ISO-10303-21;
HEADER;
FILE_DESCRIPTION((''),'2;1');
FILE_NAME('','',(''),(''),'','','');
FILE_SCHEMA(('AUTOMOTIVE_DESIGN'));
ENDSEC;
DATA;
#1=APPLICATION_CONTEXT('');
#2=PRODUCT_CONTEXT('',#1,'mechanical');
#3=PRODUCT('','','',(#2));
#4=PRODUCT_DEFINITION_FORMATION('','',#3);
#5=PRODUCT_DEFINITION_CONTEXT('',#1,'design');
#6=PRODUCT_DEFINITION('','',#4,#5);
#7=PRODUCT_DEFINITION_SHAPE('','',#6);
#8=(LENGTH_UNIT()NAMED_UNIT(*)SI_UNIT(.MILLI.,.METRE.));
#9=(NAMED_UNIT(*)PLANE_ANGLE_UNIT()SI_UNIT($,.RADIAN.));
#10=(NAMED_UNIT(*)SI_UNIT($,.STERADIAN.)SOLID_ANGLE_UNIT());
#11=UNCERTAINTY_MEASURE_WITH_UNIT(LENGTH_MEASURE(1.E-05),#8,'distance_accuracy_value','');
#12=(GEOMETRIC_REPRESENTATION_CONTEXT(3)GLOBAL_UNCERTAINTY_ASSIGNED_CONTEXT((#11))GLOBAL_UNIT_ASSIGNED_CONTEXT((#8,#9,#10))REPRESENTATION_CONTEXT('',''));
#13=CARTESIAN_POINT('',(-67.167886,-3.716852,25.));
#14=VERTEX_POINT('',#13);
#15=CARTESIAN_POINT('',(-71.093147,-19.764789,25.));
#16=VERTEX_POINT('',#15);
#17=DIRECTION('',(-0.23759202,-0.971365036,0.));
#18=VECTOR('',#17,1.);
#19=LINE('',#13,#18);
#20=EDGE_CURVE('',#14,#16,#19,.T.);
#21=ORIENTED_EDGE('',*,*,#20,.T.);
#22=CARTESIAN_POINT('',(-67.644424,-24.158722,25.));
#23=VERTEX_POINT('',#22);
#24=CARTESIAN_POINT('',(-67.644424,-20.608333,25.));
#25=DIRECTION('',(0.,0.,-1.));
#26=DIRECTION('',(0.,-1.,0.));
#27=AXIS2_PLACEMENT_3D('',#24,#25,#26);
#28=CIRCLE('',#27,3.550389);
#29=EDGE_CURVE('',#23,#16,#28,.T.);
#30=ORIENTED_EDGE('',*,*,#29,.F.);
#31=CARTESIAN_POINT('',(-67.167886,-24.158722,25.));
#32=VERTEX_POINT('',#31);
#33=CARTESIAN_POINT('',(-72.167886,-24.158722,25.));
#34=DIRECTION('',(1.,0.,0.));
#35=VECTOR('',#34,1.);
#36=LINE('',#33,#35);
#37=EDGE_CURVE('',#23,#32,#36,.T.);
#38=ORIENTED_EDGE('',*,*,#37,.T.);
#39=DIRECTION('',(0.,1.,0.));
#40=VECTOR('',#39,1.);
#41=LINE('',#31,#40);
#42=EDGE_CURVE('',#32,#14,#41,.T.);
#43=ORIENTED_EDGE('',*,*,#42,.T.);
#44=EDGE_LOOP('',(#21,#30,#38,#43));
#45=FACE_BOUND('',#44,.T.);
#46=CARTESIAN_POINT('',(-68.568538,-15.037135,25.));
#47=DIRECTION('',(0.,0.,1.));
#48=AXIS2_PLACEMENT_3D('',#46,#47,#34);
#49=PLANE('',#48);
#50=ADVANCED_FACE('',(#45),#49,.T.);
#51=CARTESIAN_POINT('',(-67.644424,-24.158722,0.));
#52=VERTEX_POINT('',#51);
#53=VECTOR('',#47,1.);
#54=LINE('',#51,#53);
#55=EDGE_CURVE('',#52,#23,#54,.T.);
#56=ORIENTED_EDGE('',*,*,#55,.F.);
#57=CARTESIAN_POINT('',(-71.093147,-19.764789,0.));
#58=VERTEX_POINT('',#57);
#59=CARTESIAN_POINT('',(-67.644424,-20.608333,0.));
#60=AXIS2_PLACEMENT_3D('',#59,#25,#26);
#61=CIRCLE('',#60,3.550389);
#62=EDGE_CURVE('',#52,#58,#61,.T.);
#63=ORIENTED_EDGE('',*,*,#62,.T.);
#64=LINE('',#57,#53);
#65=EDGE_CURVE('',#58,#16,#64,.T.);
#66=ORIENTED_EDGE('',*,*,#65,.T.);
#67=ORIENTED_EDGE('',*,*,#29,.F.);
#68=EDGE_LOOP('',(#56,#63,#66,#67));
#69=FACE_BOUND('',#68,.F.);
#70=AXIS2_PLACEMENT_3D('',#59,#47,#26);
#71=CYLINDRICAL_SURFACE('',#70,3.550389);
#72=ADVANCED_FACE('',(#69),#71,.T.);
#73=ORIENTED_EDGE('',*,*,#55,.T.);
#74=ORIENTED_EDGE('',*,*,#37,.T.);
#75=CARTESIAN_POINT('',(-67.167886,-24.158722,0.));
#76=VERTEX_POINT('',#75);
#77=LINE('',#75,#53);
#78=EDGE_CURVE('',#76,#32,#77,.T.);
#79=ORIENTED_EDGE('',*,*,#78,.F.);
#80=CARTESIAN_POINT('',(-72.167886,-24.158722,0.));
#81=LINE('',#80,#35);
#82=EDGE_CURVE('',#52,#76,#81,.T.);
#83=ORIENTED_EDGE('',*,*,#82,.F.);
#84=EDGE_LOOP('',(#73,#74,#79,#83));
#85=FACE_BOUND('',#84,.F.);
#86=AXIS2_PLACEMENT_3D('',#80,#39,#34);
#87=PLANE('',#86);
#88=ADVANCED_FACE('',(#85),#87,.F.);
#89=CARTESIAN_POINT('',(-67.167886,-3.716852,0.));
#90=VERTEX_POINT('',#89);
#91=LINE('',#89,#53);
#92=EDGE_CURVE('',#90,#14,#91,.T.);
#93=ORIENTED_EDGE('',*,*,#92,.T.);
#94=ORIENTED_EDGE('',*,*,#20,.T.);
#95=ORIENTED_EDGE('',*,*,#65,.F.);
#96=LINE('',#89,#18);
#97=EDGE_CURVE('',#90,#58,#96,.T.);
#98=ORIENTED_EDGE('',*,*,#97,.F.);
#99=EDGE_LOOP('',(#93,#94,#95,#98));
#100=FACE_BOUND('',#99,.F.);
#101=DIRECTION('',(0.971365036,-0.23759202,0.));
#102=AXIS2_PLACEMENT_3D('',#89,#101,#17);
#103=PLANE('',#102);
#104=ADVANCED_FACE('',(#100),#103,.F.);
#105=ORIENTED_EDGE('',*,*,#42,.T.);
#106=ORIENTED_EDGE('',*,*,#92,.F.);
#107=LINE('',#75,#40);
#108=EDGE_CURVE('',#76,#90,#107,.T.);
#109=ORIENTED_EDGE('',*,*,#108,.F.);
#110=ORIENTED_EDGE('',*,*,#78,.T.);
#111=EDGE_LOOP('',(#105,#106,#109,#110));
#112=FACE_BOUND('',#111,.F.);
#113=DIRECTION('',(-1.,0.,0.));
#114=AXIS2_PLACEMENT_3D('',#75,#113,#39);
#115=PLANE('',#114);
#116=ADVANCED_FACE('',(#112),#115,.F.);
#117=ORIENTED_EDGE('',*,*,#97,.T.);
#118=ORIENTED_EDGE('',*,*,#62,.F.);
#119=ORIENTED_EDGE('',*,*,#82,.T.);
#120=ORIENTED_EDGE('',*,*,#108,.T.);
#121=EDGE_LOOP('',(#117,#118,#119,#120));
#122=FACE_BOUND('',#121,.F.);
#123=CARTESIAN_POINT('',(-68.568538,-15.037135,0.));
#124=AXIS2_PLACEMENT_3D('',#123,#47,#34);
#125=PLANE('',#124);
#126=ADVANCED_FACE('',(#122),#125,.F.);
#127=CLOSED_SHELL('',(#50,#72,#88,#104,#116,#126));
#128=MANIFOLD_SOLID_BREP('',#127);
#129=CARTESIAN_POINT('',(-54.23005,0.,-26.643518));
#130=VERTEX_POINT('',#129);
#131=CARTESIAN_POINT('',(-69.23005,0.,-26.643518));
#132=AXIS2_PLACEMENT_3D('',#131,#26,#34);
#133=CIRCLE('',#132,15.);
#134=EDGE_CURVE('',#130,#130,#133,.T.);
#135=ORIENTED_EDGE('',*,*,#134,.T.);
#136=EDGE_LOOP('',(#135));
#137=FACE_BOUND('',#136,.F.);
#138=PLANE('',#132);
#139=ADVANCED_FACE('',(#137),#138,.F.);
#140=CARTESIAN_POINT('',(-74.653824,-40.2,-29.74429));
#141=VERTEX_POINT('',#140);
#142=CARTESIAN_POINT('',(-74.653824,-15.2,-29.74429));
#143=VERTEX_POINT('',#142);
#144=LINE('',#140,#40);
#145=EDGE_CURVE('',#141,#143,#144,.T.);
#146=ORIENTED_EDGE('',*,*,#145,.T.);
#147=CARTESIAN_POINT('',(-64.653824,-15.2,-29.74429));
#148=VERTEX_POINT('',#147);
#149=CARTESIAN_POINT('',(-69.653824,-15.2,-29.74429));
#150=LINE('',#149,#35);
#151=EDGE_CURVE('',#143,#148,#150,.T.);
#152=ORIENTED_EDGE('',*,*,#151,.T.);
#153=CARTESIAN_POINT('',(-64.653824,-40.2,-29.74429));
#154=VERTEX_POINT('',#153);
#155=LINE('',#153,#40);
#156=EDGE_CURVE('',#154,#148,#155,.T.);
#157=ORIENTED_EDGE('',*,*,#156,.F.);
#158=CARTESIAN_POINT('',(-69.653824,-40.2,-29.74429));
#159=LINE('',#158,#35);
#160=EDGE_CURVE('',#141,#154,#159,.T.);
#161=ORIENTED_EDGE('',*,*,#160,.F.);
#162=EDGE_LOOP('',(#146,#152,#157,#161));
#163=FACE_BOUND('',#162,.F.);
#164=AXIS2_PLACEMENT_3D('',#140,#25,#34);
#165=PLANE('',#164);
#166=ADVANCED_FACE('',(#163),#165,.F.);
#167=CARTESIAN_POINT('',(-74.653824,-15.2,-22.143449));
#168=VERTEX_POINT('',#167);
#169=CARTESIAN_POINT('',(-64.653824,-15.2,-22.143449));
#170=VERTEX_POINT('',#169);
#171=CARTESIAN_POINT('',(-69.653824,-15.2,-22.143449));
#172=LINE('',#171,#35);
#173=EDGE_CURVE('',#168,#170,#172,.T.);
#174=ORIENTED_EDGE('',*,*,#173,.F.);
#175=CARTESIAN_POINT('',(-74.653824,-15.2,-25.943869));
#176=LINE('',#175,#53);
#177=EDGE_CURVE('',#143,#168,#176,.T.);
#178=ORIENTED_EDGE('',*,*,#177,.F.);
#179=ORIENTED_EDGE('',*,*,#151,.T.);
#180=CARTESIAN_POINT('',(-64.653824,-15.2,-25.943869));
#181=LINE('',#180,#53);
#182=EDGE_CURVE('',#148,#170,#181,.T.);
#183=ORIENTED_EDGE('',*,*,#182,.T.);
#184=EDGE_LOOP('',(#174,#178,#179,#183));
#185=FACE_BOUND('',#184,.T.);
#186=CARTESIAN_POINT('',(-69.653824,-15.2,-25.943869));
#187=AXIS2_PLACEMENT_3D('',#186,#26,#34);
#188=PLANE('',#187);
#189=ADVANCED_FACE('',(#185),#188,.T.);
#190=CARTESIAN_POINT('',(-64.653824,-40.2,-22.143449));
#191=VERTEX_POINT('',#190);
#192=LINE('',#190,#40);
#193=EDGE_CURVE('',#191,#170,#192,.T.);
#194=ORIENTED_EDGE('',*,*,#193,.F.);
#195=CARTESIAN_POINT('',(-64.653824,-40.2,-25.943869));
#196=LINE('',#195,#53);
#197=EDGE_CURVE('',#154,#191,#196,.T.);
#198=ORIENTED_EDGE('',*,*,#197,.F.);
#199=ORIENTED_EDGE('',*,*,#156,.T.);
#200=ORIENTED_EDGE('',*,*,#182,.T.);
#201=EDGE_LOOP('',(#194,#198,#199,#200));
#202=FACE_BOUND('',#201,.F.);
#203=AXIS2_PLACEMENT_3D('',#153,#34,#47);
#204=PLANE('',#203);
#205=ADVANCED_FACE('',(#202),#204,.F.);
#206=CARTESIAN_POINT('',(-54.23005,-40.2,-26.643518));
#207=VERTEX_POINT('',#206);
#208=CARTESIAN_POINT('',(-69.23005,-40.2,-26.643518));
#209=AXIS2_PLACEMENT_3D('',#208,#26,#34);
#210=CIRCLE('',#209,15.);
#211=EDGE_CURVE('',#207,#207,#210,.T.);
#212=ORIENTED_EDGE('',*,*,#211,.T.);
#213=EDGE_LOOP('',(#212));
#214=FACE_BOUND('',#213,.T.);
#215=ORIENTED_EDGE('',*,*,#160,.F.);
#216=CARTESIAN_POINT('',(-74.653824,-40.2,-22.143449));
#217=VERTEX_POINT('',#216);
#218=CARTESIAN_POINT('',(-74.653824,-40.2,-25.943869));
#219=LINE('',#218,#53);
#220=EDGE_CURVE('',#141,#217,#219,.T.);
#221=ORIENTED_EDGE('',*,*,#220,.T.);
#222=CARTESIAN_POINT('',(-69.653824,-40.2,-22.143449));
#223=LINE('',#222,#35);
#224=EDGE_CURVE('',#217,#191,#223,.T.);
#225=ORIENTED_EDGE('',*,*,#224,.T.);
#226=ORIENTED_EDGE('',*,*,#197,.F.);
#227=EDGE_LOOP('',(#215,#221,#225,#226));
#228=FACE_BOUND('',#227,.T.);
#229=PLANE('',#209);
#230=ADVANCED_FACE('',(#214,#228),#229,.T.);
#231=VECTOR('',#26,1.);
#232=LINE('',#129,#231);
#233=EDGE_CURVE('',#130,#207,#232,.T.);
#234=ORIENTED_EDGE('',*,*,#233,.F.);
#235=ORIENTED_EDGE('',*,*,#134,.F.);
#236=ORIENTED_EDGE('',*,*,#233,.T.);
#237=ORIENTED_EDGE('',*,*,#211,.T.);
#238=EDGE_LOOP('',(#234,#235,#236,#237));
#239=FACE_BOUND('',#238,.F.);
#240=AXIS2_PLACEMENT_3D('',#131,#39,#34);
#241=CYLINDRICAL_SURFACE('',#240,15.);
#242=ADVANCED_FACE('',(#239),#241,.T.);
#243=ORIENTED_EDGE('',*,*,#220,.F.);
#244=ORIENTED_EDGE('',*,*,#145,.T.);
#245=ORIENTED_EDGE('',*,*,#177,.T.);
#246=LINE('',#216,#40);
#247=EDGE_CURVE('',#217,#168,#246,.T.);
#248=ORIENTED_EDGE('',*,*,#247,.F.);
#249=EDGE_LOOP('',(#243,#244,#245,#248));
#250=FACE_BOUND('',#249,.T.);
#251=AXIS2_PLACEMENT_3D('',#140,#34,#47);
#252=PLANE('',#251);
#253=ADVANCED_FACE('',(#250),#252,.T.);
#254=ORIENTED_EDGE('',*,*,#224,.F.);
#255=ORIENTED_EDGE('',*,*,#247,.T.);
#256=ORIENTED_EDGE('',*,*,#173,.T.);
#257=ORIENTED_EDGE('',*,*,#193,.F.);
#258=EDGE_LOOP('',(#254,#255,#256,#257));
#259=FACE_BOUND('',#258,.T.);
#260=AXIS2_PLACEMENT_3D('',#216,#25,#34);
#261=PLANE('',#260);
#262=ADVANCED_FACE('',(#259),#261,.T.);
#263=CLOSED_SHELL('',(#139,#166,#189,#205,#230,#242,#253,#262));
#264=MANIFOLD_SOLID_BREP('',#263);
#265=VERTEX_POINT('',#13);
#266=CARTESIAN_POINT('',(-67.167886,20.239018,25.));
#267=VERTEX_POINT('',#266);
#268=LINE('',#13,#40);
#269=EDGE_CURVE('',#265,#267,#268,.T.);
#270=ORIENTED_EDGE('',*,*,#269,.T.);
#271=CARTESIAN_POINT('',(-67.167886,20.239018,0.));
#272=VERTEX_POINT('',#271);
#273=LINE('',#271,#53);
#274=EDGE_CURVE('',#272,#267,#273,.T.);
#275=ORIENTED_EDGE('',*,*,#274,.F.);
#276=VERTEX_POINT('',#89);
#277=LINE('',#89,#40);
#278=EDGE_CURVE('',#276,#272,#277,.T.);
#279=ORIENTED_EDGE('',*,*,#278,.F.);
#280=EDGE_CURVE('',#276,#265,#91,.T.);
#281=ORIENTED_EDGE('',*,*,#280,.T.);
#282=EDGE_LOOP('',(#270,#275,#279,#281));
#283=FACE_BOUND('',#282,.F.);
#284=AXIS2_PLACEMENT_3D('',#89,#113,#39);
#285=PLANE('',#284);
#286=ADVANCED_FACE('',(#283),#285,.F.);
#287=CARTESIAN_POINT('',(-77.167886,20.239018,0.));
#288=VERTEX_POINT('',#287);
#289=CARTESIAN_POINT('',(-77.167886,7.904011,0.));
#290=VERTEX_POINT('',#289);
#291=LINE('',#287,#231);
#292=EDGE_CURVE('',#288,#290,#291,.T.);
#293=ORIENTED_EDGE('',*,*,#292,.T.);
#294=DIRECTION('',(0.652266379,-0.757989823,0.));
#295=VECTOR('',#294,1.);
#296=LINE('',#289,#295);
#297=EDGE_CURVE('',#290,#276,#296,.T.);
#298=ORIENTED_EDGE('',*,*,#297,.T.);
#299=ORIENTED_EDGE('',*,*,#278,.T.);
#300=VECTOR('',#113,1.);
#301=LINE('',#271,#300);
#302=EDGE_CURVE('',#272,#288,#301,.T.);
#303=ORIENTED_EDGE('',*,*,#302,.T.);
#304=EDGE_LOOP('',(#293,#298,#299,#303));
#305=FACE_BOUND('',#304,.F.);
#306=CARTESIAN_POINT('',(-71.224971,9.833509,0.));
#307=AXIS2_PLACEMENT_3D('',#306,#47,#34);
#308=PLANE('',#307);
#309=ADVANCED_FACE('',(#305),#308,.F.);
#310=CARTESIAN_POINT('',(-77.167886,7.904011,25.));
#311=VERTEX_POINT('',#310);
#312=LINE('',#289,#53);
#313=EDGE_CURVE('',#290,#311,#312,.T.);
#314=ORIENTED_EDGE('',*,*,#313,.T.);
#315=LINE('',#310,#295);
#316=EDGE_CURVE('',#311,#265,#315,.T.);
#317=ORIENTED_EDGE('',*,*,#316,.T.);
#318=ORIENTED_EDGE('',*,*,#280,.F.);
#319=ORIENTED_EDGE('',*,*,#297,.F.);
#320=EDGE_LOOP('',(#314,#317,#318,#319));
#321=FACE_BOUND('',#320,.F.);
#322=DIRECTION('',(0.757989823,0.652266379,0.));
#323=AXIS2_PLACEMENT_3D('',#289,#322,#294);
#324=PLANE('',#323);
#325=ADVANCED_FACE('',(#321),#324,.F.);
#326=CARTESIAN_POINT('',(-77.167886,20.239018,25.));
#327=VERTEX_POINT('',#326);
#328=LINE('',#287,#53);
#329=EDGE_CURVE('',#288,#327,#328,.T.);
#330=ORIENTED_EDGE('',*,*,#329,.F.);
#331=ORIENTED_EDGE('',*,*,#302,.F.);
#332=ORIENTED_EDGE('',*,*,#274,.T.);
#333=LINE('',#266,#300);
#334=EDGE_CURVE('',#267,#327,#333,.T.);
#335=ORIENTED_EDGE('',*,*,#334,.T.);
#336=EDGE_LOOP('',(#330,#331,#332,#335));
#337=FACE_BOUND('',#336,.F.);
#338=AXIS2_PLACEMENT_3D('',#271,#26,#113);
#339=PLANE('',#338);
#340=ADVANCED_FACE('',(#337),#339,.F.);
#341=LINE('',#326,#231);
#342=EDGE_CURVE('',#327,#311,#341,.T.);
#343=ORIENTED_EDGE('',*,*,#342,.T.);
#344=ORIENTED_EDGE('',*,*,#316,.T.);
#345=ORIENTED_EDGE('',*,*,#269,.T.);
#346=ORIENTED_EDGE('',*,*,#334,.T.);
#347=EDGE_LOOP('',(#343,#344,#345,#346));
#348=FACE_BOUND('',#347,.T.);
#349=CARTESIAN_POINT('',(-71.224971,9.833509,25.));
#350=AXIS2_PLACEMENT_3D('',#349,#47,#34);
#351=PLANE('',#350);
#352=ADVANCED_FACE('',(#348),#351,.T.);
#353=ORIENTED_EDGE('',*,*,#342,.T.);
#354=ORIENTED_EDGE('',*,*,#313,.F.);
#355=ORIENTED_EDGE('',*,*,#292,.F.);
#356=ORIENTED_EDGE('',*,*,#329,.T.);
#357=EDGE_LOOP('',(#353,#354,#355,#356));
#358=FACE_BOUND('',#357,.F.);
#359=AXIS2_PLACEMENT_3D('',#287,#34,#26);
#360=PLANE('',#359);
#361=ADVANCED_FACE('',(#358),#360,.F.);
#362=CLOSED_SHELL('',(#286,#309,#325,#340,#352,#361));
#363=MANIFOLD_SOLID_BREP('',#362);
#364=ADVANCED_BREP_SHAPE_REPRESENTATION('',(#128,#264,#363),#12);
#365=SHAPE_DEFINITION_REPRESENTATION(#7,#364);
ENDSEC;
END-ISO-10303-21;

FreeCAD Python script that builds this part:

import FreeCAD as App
import Part
import Sketcher


def edges_at(feature, points):
    """Names of the edges that pass closest to the given points."""
    edges = feature.Shape.Edges
    near = lambda p: min(range(len(edges)), key=lambda i: edges[i].distToShape(Part.Vertex(*p))[0])
    return sorted({f"Edge{near(p) + 1}" for p in points})

doc = App.newDocument("Part")
params = doc.addObject("Spreadsheet::Sheet", "Params")
for row, (alias, value) in enumerate([
    ("sketch1_width", "10 mm"),
    ("sketch1_width2", "5 mm"),
    ("pad1_length", "25 mm"),
    ("fillet_radius", "3.550389 mm"),
    ("sketch2_diameter", "30 mm"),
    ("pad2_length", "40.2 mm"),
    ("sketch3_width", "10 mm"),
    ("pocket1_length", "25 mm"),
], start=1):
    params.set(f"A{row}", alias)
    params.set(f"B{row}", "=" + value)
    params.setAlias(f"B{row}", alias)

body = doc.addObject("PartDesign::Body", "Body")
body.AllowCompound = True

sketch1 = body.newObject("Sketcher::SketchObject", "Sketch")
sketch1.AttachmentSupport = (doc.getObject("XY_Plane"), [""])
sketch1.MapMode = "FlatFace"
sketch1.addGeometry(Part.LineSegment(App.Vector(-67.167886, 20.239018, 0), App.Vector(-77.167886, 20.239018, 0)), False)
sketch1.addGeometry(Part.LineSegment(App.Vector(-77.167886, 20.239018, 0), App.Vector(-77.167886, 7.904011, 0)), False)
sketch1.addGeometry(Part.LineSegment(App.Vector(-77.167886, 7.904011, 0), App.Vector(-67.167886, -3.716852, 0)), False)
sketch1.addGeometry(Part.LineSegment(App.Vector(-67.167886, -3.716852, 0), App.Vector(-67.167886, 20.239018, 0)), False)
sketch1.addGeometry(Part.LineSegment(App.Vector(-67.167886, -24.158722, 0), App.Vector(-67.167886, -3.716852, 0)), False)
sketch1.addGeometry(Part.LineSegment(App.Vector(-67.167886, -3.716852, 0), App.Vector(-72.167886, -24.158722, 0)), False)
sketch1.addGeometry(Part.LineSegment(App.Vector(-72.167886, -24.158722, 0), App.Vector(-67.167886, -24.158722, 0)), False)
sketch1.addConstraint(Sketcher.Constraint("Coincident", 0, 2, 1, 1))
sketch1.addConstraint(Sketcher.Constraint("Coincident", 1, 2, 2, 1))
sketch1.addConstraint(Sketcher.Constraint("Coincident", 2, 2, 3, 1))
sketch1.addConstraint(Sketcher.Constraint("Coincident", 3, 2, 0, 1))
sketch1.addConstraint(Sketcher.Constraint("Coincident", 4, 2, 5, 1))
sketch1.addConstraint(Sketcher.Constraint("Coincident", 5, 2, 6, 1))
sketch1.addConstraint(Sketcher.Constraint("Coincident", 6, 2, 4, 1))
sketch1.addConstraint(Sketcher.Constraint("Horizontal", 0))
sketch1.addConstraint(Sketcher.Constraint("Vertical", 1))
sketch1.addConstraint(Sketcher.Constraint("Vertical", 3))
sketch1.addConstraint(Sketcher.Constraint("Vertical", 4))
sketch1.addConstraint(Sketcher.Constraint("Horizontal", 6))
sketch1.addConstraint(Sketcher.Constraint("Coincident", 4, 2, 2, 2))
sketch1.addConstraint(Sketcher.Constraint("DistanceX", 0, 2, 0, 1, 10.0))
sketch1.addConstraint(Sketcher.Constraint("DistanceX", 6, 1, 6, 2, 5.0))
sketch1.addConstraint(Sketcher.Constraint("DistanceY", 3, 1, 3, 2, 23.95587))
sketch1.addConstraint(Sketcher.Constraint("DistanceY", 4, 1, 4, 2, 20.44187))
sketch1.addConstraint(Sketcher.Constraint("Distance", 2, 15.33116))
sketch1.addConstraint(Sketcher.Constraint("DistanceY", -1, 1, 0, 2, 20.239018))
sketch1.addConstraint(Sketcher.Constraint("DistanceX", 0, 2, -1, 1, 77.167886))
sketch1.setExpression("Constraints[13]", "Params.sketch1_width")
sketch1.setExpression("Constraints[14]", "Params.sketch1_width2")
pad1 = body.newObject("PartDesign::Pad", "Pad")
pad1.Profile = sketch1
pad1.setExpression("Length", "Params.pad1_length")
doc.recompute()

fillet = body.newObject("PartDesign::Fillet", "Fillet")
fillet.Base = (pad1, edges_at(pad1, [(-72.168, -24.159, 12.5)]))
fillet.setExpression("Radius", "Params.fillet_radius")
body2 = doc.addObject("PartDesign::Body", "Body001")

sketch2 = body2.newObject("Sketcher::SketchObject", "Sketch001")
sketch2.AttachmentSupport = (doc.getObject("XZ_Plane001"), [""])
sketch2.MapMode = "FlatFace"
sketch2.addGeometry(Part.Circle(App.Vector(-69.23005, -26.643518, 0), App.Vector(0, 0, 1), 15), False)
sketch2.addConstraint(Sketcher.Constraint("Diameter", 0, 30.0))
sketch2.addConstraint(Sketcher.Constraint("DistanceX", 0, 3, -1, 1, 69.23005))
sketch2.addConstraint(Sketcher.Constraint("DistanceY", 0, 3, -1, 1, 26.643518))
sketch2.setExpression("Constraints[0]", "Params.sketch2_diameter")
pad2 = body2.newObject("PartDesign::Pad", "Pad001")
pad2.Profile = sketch2
pad2.setExpression("Length", "Params.pad2_length")

sketch3 = body2.newObject("Sketcher::SketchObject", "Sketch002")
sketch3.AttachmentSupport = (doc.getObject("XZ_Plane001"), [""])
sketch3.MapMode = "FlatFace"
sketch3.AttachmentOffset = App.Placement(App.Vector(0, 0, 40.2), App.Rotation())
sketch3.addGeometry(Part.LineSegment(App.Vector(-74.653824, -22.143449, 0), App.Vector(-74.653824, -29.74429, 0)), False)
sketch3.addGeometry(Part.LineSegment(App.Vector(-74.653824, -29.74429, 0), App.Vector(-64.653824, -29.74429, 0)), False)
sketch3.addGeometry(Part.LineSegment(App.Vector(-64.653824, -29.74429, 0), App.Vector(-64.653824, -22.143449, 0)), False)
sketch3.addGeometry(Part.LineSegment(App.Vector(-64.653824, -22.143449, 0), App.Vector(-74.653824, -22.143449, 0)), False)
sketch3.addConstraint(Sketcher.Constraint("Coincident", 0, 2, 1, 1))
sketch3.addConstraint(Sketcher.Constraint("Coincident", 1, 2, 2, 1))
sketch3.addConstraint(Sketcher.Constraint("Coincident", 2, 2, 3, 1))
sketch3.addConstraint(Sketcher.Constraint("Coincident", 3, 2, 0, 1))
sketch3.addConstraint(Sketcher.Constraint("Vertical", 0))
sketch3.addConstraint(Sketcher.Constraint("Horizontal", 1))
sketch3.addConstraint(Sketcher.Constraint("Vertical", 2))
sketch3.addConstraint(Sketcher.Constraint("Horizontal", 3))
sketch3.addConstraint(Sketcher.Constraint("DistanceX", 1, 1, 1, 2, 10.0))
sketch3.addConstraint(Sketcher.Constraint("DistanceY", 0, 2, 0, 1, 7.600841))
sketch3.addConstraint(Sketcher.Constraint("DistanceY", 0, 2, -1, 1, 29.74429))
sketch3.addConstraint(Sketcher.Constraint("DistanceX", 0, 2, -1, 1, 74.653824))
sketch3.setExpression("Constraints[8]", "Params.sketch3_width")
pocket1 = body2.newObject("PartDesign::Pocket", "Pocket")
pocket1.Profile = sketch3
pocket1.setExpression("Length", "Params.pocket1_length")

doc.recompute()
